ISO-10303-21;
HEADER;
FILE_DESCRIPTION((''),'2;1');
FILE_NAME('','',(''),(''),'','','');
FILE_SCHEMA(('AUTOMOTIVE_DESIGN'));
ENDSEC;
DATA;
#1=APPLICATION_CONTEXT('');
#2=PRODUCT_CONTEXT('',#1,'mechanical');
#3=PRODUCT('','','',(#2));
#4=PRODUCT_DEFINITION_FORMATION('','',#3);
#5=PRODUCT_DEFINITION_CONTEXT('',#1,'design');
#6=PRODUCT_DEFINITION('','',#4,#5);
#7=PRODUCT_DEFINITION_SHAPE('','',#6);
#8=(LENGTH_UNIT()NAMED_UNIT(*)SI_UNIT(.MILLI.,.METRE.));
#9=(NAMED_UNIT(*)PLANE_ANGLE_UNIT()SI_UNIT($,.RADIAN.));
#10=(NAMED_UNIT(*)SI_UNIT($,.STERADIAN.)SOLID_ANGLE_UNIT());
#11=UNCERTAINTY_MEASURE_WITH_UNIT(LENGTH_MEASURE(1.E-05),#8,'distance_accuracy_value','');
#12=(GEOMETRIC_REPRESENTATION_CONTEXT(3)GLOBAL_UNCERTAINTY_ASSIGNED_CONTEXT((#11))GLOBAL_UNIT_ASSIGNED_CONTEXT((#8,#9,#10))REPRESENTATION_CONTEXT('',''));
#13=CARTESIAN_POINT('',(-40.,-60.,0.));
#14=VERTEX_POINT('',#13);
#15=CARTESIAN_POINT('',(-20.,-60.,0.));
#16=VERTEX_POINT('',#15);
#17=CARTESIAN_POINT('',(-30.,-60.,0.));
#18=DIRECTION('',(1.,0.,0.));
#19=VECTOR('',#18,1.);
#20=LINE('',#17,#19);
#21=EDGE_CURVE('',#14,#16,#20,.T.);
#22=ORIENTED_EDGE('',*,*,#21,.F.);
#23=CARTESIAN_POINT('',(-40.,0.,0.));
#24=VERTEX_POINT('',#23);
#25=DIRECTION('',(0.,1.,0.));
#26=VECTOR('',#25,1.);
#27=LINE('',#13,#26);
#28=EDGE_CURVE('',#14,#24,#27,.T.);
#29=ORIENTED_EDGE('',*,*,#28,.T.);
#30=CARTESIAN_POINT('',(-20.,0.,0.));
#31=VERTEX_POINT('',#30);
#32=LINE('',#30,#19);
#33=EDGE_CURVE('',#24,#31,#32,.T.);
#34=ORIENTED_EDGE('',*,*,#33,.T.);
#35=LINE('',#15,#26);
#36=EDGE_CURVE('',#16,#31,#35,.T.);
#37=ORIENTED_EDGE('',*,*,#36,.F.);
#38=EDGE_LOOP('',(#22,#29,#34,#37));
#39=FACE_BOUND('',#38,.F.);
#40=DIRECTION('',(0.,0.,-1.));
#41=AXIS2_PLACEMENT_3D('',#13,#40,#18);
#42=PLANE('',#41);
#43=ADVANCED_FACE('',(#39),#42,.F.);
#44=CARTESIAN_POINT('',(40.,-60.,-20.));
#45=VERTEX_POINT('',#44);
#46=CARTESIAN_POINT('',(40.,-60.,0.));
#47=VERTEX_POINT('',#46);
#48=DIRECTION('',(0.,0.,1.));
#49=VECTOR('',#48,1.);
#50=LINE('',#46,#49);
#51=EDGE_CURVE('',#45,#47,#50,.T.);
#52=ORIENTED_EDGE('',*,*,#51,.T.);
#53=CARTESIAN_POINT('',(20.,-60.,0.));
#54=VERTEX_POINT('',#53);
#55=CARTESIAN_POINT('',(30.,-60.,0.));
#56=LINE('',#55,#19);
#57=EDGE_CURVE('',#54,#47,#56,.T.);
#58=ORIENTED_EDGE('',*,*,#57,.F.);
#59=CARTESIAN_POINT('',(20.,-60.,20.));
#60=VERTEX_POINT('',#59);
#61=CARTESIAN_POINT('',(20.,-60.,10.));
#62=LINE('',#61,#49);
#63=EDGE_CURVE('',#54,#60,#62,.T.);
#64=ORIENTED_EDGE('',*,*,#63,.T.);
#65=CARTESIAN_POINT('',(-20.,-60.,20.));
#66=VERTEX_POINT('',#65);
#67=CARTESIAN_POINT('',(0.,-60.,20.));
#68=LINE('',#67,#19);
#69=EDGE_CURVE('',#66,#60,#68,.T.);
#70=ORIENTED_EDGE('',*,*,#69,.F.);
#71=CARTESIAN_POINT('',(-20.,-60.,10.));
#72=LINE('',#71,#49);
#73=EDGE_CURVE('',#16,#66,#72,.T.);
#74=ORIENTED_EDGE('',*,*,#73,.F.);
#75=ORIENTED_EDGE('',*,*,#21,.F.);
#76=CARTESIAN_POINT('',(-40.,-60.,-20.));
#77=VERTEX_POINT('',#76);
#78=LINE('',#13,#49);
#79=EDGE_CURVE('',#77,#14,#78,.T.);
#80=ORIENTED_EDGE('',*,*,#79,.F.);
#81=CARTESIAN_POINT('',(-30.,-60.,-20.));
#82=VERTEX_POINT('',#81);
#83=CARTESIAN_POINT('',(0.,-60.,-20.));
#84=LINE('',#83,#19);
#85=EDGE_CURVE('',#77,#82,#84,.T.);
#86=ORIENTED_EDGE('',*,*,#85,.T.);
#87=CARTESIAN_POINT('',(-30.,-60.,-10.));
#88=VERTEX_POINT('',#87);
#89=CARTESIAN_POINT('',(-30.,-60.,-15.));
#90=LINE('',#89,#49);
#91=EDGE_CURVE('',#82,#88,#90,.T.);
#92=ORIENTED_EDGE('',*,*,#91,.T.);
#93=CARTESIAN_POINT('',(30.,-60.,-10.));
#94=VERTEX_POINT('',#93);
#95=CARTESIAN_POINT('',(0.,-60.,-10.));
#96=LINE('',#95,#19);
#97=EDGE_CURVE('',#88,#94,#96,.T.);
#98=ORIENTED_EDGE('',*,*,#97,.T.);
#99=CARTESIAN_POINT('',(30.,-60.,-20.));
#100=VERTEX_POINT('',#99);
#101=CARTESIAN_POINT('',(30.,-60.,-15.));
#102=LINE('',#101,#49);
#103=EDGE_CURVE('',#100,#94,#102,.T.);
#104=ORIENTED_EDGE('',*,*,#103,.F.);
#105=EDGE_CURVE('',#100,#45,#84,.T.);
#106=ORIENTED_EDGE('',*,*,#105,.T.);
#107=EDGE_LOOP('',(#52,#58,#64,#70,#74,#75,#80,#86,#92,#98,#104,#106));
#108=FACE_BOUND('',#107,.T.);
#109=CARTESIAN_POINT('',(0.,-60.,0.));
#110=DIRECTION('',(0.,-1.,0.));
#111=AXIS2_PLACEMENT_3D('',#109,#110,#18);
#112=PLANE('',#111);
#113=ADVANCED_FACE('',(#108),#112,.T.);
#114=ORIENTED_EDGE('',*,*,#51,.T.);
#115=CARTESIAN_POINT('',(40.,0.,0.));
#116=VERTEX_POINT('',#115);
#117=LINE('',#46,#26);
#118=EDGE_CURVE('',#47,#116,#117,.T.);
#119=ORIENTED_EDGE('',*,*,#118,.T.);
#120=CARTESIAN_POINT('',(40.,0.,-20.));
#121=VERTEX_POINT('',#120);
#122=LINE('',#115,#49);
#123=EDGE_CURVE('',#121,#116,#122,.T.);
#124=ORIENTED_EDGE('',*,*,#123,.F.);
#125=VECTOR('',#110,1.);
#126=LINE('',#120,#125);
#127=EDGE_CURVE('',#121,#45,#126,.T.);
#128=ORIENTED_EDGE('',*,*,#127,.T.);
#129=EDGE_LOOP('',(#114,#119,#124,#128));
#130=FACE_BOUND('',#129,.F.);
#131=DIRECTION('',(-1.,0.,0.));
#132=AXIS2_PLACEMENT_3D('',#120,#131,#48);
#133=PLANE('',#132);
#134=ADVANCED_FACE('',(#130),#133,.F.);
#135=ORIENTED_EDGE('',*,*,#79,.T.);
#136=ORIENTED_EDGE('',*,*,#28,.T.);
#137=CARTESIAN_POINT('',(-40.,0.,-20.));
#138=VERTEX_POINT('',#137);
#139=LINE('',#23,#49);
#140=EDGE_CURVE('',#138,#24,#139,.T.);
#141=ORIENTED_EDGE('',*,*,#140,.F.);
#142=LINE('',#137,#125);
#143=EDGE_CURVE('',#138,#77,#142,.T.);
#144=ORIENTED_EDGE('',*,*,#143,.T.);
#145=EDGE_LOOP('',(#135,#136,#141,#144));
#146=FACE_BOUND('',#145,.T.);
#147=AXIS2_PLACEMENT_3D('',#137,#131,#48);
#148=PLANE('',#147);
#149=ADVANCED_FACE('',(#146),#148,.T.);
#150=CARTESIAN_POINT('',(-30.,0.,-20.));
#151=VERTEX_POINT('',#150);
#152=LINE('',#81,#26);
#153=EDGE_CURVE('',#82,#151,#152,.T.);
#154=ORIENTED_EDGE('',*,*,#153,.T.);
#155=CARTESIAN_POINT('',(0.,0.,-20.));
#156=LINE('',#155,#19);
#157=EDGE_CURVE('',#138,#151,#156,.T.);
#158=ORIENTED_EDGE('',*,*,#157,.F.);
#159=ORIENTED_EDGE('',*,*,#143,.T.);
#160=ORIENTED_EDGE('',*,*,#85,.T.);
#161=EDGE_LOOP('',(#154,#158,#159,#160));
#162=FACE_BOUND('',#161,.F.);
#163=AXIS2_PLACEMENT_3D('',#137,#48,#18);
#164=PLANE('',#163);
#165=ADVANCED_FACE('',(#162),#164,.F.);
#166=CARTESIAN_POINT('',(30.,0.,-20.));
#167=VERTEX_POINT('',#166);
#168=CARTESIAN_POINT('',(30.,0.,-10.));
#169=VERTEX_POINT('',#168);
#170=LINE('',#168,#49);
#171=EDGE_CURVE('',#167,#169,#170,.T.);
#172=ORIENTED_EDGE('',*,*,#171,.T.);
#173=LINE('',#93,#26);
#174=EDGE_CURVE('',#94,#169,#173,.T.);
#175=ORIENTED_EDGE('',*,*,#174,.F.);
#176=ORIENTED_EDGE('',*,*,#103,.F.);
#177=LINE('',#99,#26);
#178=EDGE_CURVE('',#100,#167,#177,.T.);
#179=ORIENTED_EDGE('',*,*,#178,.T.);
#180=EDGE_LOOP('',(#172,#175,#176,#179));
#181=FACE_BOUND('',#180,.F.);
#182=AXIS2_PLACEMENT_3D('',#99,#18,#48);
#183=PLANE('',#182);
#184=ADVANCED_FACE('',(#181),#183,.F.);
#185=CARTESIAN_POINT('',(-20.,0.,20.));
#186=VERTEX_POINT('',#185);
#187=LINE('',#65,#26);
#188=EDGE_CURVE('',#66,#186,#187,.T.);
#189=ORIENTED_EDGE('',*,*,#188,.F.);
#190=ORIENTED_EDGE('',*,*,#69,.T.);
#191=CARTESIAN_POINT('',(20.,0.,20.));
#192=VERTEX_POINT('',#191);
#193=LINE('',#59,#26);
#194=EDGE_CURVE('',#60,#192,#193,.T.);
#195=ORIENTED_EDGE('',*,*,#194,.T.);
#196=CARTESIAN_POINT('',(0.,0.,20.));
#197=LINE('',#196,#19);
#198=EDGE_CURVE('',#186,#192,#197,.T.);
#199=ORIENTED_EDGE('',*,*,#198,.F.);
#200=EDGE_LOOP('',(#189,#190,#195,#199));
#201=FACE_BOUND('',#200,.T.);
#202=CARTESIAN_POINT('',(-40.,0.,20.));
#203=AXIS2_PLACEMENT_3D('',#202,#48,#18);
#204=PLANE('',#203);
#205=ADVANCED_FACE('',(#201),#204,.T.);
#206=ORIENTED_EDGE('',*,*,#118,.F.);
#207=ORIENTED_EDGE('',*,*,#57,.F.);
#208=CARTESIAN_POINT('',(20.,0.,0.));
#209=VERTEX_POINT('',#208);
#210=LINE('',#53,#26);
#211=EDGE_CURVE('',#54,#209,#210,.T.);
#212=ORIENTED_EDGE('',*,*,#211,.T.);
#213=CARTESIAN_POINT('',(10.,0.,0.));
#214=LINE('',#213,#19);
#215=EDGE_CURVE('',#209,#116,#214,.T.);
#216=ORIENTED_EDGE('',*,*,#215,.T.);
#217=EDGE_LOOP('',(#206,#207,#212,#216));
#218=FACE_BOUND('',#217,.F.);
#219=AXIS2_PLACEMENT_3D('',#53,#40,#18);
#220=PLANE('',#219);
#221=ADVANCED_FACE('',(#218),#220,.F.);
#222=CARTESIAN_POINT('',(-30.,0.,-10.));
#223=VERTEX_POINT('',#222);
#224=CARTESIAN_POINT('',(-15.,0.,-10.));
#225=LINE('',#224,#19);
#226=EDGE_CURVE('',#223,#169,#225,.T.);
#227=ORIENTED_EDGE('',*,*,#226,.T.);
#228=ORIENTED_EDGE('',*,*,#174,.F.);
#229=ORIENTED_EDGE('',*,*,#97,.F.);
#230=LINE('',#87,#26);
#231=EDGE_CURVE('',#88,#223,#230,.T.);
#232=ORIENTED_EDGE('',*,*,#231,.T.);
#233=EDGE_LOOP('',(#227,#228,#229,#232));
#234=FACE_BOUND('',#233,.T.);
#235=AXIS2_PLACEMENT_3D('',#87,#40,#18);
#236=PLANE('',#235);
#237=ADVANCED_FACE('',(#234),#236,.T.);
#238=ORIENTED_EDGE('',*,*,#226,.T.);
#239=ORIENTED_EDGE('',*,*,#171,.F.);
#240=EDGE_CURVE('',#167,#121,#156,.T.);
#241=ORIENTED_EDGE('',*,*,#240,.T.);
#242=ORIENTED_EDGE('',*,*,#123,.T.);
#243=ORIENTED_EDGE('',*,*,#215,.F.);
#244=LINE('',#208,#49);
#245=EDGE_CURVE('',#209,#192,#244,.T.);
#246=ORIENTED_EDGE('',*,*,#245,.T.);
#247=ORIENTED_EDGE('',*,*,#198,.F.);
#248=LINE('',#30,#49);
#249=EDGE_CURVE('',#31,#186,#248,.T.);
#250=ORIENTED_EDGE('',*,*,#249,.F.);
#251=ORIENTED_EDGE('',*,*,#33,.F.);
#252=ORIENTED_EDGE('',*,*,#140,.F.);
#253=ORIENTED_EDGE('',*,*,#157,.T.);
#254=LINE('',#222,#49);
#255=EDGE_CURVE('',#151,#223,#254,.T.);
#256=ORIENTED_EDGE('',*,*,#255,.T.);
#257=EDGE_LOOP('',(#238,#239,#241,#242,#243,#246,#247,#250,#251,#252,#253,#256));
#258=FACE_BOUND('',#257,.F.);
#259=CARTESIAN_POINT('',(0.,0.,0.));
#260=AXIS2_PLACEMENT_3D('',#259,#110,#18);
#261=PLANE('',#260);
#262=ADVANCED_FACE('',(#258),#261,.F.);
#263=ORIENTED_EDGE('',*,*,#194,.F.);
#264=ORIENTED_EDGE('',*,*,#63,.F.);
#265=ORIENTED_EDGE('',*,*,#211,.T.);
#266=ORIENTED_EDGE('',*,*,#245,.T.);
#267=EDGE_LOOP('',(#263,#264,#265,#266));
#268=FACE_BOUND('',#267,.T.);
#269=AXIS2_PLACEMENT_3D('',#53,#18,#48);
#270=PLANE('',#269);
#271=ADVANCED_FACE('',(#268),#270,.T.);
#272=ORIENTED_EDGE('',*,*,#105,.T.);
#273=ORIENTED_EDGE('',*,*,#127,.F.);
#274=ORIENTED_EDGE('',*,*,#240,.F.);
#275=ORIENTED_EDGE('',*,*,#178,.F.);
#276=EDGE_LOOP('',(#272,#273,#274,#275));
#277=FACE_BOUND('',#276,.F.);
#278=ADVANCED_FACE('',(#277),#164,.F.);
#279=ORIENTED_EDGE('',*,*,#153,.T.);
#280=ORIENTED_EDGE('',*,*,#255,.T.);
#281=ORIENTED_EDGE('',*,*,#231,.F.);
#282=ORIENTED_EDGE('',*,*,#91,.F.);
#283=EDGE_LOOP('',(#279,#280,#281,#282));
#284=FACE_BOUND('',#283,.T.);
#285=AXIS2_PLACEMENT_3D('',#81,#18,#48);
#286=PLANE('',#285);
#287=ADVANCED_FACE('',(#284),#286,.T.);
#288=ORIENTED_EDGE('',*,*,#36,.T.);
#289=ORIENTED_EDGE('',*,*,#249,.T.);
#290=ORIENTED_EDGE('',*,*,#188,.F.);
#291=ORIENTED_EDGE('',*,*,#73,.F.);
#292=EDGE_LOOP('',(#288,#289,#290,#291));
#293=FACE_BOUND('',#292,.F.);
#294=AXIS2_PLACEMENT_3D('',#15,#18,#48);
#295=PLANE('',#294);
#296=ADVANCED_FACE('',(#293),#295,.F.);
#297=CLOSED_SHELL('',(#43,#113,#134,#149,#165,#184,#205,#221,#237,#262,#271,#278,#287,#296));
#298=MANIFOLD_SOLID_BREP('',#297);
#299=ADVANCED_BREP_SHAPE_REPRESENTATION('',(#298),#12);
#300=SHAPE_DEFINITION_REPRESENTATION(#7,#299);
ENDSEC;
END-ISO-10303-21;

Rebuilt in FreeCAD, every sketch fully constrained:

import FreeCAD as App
import Part
import Sketcher


def add_polygon(sketch, points):
    """Adds a closed chain of lines whose ends are joined by coincident constraints."""
    first, n = sketch.GeometryCount, len(points)
    for a, b in zip(points, points[1:] + points[:1]):
        sketch.addGeometry(Part.LineSegment(App.Vector(*a, 0), App.Vector(*b, 0)), False)
    for i in range(n):
        sketch.addConstraint(Sketcher.Constraint("Coincident", first + i, 2, first + (i + 1) % n, 1))

doc = App.newDocument("Part")
body = doc.addObject("PartDesign::Body", "Body")

sketch1 = body.newObject("Sketcher::SketchObject", "Sketch")
sketch1.AttachmentSupport = (doc.getObject("XZ_Plane"), [""])
sketch1.MapMode = "FlatFace"
add_polygon(sketch1, [(-40, 20), (-40, -20), (40, -20), (40, 20)])
sketch1.addConstraint([
    Sketcher.Constraint("Vertical", 0),
    Sketcher.Constraint("Horizontal", 1),
    Sketcher.Constraint("Vertical", 2),
    Sketcher.Constraint("Horizontal", 3),
    Sketcher.Constraint("Symmetric", 0, 2, 2, 2, -1, 1),
    Sketcher.Constraint("DistanceX", 1, 1, 1, 2, 80.0),
    Sketcher.Constraint("DistanceY", 0, 2, 0, 1, 40.0),
])
pad1 = body.newObject("PartDesign::Pad", "Pad")
pad1.Profile = sketch1
pad1.Length = 60

sketch2 = body.newObject("Sketcher::SketchObject", "Sketch001")
sketch2.AttachmentSupport = (doc.getObject("XZ_Plane"), [""])
sketch2.MapMode = "FlatFace"
sketch2.AttachmentOffset = App.Placement(App.Vector(0, 0, 60), App.Rotation())
add_polygon(sketch2, [(20, 20), (20, 0), (40, 0), (40, 20)])
add_polygon(sketch2, [(-40, 20), (-40, 0), (-20, 0), (-20, 20)])
sketch2.addConstraint([
    Sketcher.Constraint("Vertical", 0),
    Sketcher.Constraint("Horizontal", 1),
    Sketcher.Constraint("Vertical", 2),
    Sketcher.Constraint("Horizontal", 3),
    Sketcher.Constraint("Vertical", 4),
    Sketcher.Constraint("Horizontal", 5),
    Sketcher.Constraint("Vertical", 6),
    Sketcher.Constraint("Horizontal", 7),
    Sketcher.Constraint("Symmetric", 1, 2, 4, 2, -1, 1),
    Sketcher.Constraint("Symmetric", 0, 2, 5, 2, -2),
    Sketcher.Constraint("Horizontal", 3, 2, 6, 2),
    Sketcher.Constraint("Equal", 7, 0),
    Sketcher.Constraint("DistanceX", 1, 1, 1, 2, 20.0),
    Sketcher.Constraint("DistanceX", -1, 1, 0, 2, 20.0),
])
pocket1 = body.newObject("PartDesign::Pocket", "Pocket")
pocket1.Profile = sketch2
pocket1.Type = "ThroughAll"

sketch3 = body.newObject("Sketcher::SketchObject", "Sketch002")
sketch3.AttachmentSupport = (doc.getObject("XZ_Plane"), [""])
sketch3.MapMode = "FlatFace"
sketch3.AttachmentOffset = App.Placement(App.Vector(0, 0, 60), App.Rotation())
add_polygon(sketch3, [(-30, -10), (-30, -20), (30, -20), (30, -10)])
sketch3.addConstraint([
    Sketcher.Constraint("Vertical", 0),
    Sketcher.Constraint("Horizontal", 1),
    Sketcher.Constraint("Vertical", 2),
    Sketcher.Constraint("Horizontal", 3),
    Sketcher.Constraint("DistanceX", 1, 1, 1, 2, 60.0),
    Sketcher.Constraint("DistanceY", 0, 2, 0, 1, 10.0),
    Sketcher.Constraint("DistanceX", 0, 2, -1, 1, 30.0),
    Sketcher.Constraint("DistanceY", 0, 2, -1, 1, 20.0),
])
pocket2 = body.newObject("PartDesign::Pocket", "Pocket001")
pocket2.Profile = sketch3
pocket2.Type = "ThroughAll"

doc.recompute()
